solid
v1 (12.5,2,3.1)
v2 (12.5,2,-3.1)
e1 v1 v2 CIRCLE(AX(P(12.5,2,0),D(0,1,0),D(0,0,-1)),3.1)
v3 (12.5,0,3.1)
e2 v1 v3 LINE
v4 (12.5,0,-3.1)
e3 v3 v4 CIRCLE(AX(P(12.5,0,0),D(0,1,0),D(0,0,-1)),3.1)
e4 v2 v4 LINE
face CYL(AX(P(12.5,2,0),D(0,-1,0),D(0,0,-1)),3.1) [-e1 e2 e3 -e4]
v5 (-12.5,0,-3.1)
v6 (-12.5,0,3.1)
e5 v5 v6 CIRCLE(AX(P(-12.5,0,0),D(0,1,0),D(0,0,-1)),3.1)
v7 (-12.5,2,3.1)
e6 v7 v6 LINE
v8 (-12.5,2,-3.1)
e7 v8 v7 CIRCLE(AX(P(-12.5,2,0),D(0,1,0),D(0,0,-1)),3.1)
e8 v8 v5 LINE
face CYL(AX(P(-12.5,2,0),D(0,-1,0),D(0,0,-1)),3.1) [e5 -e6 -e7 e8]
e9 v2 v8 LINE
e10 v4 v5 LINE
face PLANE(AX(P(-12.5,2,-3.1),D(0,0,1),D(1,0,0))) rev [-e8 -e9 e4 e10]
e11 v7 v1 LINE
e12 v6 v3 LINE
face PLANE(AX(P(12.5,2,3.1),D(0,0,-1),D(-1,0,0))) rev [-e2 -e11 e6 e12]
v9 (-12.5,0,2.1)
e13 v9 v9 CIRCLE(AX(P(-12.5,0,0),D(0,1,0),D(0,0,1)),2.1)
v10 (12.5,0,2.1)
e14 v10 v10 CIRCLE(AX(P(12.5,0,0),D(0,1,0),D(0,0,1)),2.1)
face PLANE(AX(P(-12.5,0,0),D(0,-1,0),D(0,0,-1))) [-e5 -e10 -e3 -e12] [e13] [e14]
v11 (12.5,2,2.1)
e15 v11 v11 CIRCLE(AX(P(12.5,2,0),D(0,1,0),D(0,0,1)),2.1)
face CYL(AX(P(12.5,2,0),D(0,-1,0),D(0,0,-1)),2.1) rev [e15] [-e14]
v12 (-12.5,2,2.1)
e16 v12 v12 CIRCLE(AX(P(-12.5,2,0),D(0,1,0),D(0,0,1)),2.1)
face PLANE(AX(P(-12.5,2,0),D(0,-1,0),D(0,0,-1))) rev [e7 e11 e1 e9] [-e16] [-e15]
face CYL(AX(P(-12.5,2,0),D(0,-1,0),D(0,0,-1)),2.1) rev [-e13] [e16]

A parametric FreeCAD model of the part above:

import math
import FreeCAD as App
import Part
import Sketcher
from FreeCAD import Vector

doc = App.newDocument("Part")
params = doc.addObject("Spreadsheet::Sheet", "Params")
for row, (alias, value) in enumerate([
    ("sketch1_diameter", "4.2 mm"),
    ("sketch1_radius", "3.1 mm"),
    ("sketch1_width", "25 mm"),
    ("pad1_length", "2 mm"),
], start=1):
    params.set(f"A{row}", alias)
    params.set(f"B{row}", "=" + value)
    params.setAlias(f"B{row}", alias)

body = doc.addObject("PartDesign::Body", "Body")

sketch1 = body.newObject("Sketcher::SketchObject", "Sketch")
sketch1.AttachmentSupport = (doc.getObject("XZ_Plane"), [""])
sketch1.MapMode = "FlatFace"
sketch1.addGeometry([
    Part.LineSegment(Vector(12.5, -3.1, 0), Vector(-12.5, -3.1, 0)),
    Part.ArcOfCircle(Part.Circle(Vector(-12.5, 0, 0), Vector(0, 0, 1), 3.1), math.radians(90), math.radians(270)),
    Part.LineSegment(Vector(-12.5, 3.1, 0), Vector(12.5, 3.1, 0)),
    Part.ArcOfCircle(Part.Circle(Vector(12.5, 0, 0), Vector(0, 0, 1), 3.1), math.radians(-90), math.radians(90)),
    Part.Circle(Vector(12.5, 0, 0), Vector(0, 0, 1), 2.1),
    Part.Circle(Vector(-12.5, 0, 0), Vector(0, 0, 1), 2.1),
], False)
sketch1.addConstraint([
    Sketcher.Constraint("Tangent", 0, 2, 1, 2),
    Sketcher.Constraint("Tangent", 1, 1, 2, 1),
    Sketcher.Constraint("Tangent", 2, 2, 3, 2),
    Sketcher.Constraint("Tangent", 3, 1, 0, 1),
    Sketcher.Constraint("Horizontal", 0),
    Sketcher.Constraint("Horizontal", 2),
    Sketcher.Constraint("Coincident", 4, 3, 3, 3),
    Sketcher.Constraint("Coincident", 5, 3, 1, 3),
    Sketcher.Constraint("Equal", 4, 5),
    Sketcher.Constraint("Symmetric", 1, 3, 3, 3, -1, 1),
    Sketcher.Constraint("Diameter", 4, 4.2),
    Sketcher.Constraint("Radius", 1, 3.1),
    Sketcher.Constraint("DistanceX", 0, 2, 0, 1, 25.0),
])
sketch1.setExpression("Constraints[10]", "Params.sketch1_diameter")
sketch1.setExpression("Constraints[11]", "Params.sketch1_radius")
sketch1.setExpression("Constraints[12]", "Params.sketch1_width")
pad1 = body.newObject("PartDesign::Pad", "Pad")
pad1.Profile = sketch1
pad1.setExpression("Length", "Params.pad1_length")
pad1.Reversed = True

doc.recompute()
